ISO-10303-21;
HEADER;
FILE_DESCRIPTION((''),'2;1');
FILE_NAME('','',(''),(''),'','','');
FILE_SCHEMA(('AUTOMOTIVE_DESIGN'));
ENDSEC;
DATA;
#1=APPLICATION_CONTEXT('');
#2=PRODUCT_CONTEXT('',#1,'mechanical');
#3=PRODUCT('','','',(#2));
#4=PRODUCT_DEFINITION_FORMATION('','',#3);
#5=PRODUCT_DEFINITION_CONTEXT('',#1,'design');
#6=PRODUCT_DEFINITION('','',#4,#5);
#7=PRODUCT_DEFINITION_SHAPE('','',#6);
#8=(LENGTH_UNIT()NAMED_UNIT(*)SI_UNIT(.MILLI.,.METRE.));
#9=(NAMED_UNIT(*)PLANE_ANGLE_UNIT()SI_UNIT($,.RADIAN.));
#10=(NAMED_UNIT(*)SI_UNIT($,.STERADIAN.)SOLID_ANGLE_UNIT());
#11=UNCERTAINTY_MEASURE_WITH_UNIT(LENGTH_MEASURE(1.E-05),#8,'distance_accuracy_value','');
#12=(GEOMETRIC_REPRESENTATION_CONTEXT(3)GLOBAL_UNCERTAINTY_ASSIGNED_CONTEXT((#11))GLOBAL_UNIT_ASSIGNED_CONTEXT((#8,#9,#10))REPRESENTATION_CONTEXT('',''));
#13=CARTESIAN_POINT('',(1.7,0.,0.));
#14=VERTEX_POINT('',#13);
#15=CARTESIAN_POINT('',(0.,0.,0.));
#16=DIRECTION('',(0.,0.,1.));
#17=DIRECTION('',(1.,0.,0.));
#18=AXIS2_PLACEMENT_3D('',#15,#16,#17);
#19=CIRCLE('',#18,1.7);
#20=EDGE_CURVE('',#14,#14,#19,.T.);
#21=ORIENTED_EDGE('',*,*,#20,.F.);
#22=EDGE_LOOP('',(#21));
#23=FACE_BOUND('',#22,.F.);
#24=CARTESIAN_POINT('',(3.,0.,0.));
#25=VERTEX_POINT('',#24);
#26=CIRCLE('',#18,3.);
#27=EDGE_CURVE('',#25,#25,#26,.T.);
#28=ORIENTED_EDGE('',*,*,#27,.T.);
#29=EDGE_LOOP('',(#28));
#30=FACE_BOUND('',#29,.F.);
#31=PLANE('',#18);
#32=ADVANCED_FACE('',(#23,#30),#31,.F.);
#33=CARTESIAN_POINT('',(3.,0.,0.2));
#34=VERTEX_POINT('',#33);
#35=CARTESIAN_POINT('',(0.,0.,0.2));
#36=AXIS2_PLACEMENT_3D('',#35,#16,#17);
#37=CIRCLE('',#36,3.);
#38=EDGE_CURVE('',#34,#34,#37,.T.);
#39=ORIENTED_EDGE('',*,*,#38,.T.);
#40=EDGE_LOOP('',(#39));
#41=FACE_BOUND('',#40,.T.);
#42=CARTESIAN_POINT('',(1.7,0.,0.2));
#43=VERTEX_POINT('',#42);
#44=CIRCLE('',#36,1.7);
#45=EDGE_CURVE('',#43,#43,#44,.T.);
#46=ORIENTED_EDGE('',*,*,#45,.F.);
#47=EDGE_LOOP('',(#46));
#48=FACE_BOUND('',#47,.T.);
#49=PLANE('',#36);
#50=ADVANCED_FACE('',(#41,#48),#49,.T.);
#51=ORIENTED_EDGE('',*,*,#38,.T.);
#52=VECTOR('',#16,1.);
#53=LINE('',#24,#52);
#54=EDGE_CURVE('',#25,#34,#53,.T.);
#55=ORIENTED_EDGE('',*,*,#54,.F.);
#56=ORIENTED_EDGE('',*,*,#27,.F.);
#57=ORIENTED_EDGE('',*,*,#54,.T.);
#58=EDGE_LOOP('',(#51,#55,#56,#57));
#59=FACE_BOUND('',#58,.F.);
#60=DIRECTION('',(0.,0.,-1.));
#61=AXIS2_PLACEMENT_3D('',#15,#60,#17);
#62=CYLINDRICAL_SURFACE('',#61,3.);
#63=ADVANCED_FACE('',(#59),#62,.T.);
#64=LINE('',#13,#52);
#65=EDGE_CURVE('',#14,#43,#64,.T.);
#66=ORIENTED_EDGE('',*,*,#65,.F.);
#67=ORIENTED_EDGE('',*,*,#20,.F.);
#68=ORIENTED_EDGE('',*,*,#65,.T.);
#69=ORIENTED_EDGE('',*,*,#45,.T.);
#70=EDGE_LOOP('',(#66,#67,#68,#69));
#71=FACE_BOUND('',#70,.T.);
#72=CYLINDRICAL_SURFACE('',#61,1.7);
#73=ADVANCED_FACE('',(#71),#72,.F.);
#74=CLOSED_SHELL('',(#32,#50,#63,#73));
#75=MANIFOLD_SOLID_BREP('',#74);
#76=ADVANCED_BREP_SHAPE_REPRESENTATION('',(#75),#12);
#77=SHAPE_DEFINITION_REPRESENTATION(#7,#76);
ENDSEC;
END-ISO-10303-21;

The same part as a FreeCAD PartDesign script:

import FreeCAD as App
import Part
import Sketcher
from FreeCAD import Vector
Q = App.Units.Quantity

doc = App.newDocument("Part")
body = doc.addObject("PartDesign::Body", "Body")

sketch1 = doc.addObject("Sketcher::SketchObject", "Sketch")
body.addObject(sketch1)
sketch1.AttachmentSupport = (doc.XY_Plane, [""])
sketch1.MapMode = "FlatFace"
sketch1.addGeometry([
    Part.Circle(Vector(0, 0, 0), Vector(0, 0, 1), 3),
    Part.Circle(Vector(0, 0, 0), Vector(0, 0, 1), 1.7),
], False)
sketch1.addConstraint([
    Sketcher.Constraint("Coincident", 0, 3, -1, 1),
    Sketcher.Constraint("Coincident", 1, 3, -1, 1),
    Sketcher.Constraint("Diameter", 0, Q("6 mm")),
    Sketcher.Constraint("Diameter", 1, Q("3.4 mm")),
])
pad1 = doc.addObject("PartDesign::Pad", "Pad")
body.addObject(pad1)
pad1.Profile = sketch1
pad1.Length = 0.2

doc.recompute()
